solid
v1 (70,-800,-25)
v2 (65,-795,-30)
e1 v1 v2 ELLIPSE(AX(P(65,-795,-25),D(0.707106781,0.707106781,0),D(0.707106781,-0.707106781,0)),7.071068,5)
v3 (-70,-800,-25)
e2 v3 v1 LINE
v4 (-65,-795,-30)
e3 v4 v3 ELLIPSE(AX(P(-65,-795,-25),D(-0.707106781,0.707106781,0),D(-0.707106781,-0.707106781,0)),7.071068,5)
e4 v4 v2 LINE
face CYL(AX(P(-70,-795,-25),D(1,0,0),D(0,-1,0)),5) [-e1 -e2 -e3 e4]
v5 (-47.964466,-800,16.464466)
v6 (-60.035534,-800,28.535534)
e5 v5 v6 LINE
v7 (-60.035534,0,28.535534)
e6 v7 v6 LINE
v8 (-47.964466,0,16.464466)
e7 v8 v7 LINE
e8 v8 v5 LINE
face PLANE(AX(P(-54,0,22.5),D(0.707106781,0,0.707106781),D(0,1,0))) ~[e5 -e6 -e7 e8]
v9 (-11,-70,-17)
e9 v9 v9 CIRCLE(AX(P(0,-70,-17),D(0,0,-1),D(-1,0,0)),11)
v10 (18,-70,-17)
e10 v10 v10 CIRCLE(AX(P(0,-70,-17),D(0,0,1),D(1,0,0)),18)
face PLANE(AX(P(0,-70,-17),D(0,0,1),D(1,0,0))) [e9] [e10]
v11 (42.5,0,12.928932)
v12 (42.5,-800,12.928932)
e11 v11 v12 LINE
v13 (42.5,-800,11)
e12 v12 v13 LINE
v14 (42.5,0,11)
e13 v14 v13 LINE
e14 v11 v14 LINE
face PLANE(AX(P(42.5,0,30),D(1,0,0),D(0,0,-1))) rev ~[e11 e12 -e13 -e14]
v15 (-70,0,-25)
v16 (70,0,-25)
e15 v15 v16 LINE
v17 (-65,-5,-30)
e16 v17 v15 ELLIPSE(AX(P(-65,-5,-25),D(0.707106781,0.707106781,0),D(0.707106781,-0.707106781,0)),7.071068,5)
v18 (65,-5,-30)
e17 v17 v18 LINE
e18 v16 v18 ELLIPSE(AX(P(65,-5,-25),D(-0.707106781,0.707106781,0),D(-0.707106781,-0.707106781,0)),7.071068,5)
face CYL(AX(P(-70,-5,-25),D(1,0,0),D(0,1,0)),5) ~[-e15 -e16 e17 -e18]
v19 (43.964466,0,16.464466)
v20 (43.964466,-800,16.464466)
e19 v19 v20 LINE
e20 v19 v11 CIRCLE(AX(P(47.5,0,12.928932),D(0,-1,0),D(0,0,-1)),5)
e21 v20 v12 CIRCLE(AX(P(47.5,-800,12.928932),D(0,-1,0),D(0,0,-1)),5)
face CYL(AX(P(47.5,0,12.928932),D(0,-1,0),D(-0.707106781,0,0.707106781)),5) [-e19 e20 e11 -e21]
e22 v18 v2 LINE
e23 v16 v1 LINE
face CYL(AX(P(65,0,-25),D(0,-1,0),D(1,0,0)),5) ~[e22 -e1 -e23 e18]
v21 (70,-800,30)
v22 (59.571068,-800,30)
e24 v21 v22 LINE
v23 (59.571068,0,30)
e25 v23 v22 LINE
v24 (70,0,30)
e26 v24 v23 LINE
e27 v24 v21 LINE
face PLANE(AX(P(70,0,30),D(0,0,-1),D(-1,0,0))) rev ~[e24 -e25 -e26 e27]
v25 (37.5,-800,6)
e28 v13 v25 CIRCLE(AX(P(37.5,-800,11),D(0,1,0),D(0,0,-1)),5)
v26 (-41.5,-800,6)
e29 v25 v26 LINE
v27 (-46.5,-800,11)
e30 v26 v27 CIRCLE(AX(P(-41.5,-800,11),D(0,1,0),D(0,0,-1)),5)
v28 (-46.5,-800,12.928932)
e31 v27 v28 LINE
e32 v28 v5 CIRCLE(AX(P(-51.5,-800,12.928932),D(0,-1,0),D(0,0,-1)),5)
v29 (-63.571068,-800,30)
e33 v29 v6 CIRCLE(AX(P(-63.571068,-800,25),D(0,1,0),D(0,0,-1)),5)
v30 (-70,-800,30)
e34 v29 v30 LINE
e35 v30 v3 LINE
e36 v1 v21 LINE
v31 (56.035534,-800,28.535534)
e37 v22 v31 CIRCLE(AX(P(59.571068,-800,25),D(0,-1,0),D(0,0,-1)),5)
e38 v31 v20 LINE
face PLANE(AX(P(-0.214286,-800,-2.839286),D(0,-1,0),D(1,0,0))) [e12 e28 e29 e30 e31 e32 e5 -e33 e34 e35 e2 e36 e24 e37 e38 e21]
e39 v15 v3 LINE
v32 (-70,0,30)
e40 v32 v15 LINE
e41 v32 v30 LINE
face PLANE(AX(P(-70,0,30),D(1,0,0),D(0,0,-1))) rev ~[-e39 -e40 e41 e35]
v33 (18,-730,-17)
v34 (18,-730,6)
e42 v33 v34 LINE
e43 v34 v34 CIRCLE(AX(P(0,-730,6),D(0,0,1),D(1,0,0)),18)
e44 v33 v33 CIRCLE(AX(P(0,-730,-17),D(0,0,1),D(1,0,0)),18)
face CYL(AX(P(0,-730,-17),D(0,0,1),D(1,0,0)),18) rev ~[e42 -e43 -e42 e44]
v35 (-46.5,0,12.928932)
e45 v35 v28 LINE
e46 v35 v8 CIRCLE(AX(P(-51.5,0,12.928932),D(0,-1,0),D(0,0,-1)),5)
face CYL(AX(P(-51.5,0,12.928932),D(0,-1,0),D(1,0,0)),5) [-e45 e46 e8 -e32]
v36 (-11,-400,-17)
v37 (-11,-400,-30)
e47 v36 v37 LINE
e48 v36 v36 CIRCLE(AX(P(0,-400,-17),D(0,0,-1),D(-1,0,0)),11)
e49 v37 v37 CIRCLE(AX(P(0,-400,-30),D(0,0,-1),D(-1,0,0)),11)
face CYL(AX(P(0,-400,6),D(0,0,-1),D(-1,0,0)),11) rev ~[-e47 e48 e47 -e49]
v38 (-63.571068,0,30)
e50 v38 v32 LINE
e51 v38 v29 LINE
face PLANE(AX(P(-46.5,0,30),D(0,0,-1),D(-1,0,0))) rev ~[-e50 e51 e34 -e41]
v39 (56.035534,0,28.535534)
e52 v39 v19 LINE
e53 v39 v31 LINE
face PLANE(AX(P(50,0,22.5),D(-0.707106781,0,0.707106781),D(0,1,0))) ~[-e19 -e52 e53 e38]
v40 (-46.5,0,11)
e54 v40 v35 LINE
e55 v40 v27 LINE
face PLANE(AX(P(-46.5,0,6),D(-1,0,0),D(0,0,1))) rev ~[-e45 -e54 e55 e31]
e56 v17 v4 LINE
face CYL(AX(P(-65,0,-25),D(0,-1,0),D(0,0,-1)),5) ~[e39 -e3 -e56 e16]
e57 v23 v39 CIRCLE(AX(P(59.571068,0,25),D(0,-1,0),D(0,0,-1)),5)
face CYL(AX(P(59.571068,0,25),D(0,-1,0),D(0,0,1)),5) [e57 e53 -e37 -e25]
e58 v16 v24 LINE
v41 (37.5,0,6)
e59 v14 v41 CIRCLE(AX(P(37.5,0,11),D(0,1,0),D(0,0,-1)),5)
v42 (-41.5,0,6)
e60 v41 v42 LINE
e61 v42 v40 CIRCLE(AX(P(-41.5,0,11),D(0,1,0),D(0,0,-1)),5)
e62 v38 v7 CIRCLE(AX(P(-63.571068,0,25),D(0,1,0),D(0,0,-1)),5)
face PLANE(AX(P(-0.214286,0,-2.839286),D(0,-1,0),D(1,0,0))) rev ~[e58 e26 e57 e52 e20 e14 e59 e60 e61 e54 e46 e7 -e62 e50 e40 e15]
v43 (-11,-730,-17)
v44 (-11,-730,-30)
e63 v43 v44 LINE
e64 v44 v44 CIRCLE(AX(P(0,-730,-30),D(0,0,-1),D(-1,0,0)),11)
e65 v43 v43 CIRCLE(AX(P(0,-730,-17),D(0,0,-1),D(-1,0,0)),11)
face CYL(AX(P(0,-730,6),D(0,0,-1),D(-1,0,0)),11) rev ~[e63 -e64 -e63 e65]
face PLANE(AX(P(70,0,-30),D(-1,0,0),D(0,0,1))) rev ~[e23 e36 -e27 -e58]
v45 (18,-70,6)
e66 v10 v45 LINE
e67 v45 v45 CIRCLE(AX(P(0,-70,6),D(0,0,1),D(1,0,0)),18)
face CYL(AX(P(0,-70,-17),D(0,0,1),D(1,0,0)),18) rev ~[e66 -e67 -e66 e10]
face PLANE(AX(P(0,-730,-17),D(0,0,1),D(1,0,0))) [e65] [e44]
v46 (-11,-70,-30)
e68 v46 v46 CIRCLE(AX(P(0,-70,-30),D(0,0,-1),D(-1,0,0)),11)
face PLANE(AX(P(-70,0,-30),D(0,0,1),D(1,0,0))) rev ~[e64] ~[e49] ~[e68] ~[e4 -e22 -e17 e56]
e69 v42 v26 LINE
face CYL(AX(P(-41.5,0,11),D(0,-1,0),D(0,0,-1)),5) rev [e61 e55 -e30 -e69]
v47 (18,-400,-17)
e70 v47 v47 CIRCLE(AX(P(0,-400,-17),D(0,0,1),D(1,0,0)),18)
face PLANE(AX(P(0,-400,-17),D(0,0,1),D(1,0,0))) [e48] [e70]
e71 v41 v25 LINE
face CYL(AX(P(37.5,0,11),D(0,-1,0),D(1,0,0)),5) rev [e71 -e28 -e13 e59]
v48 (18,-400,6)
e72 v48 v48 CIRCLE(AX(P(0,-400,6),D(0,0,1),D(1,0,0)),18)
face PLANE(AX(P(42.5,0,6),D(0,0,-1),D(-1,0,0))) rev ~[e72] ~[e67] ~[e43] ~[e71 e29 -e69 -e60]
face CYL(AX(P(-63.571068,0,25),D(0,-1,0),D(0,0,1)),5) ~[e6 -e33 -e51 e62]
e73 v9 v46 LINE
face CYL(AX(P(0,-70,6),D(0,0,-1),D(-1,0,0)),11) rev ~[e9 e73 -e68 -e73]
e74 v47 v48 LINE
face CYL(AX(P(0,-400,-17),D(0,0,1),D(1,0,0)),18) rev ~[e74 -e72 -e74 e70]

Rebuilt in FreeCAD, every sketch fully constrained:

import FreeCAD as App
import Part
import Sketcher

V = App.Vector
Q = App.Units.Quantity


def edges_at(feature, points):
    """Names of the edges that pass closest to the given points."""
    edges = feature.Shape.Edges
    near = lambda p: min(range(len(edges)), key=lambda i: edges[i].distToShape(Part.Vertex(*p))[0])
    return sorted({f"Edge{near(p) + 1}" for p in points})


def add_polygon(sketch, points):
    """Adds a closed chain of lines whose ends are joined by coincident constraints."""
    first, n = sketch.GeometryCount, len(points)
    for a, b in zip(points, points[1:] + points[:1]):
        sketch.addGeometry(Part.LineSegment(App.Vector(*a, 0), App.Vector(*b, 0)), False)
    for i in range(n):
        sketch.addConstraint(Sketcher.Constraint("Coincident", first + i, 2, first + (i + 1) % n, 1))

doc = App.newDocument("Part")
body = doc.addObject("PartDesign::Body", "Body")

# Sketch on XZ plane
sketch1 = body.newObject("Sketcher::SketchObject", "Sketch")
sketch1.AttachmentSupport = (doc.getObject("XZ_Plane"), [""])
sketch1.MapMode = "FlatFace"
add_polygon(sketch1, [(70, -30), (70, 30), (42, 30), (42, 6), (-46, 6), (-46, 30), (-70, 30), (-70, -30)])  # lines 0-7
sketch1.addConstraint([
    Sketcher.Constraint("Vertical", 0),
    Sketcher.Constraint("Horizontal", 1),
    Sketcher.Constraint("Vertical", 2),
    Sketcher.Constraint("Horizontal", 3),
    Sketcher.Constraint("Vertical", 4),
    Sketcher.Constraint("Horizontal", 5),
    Sketcher.Constraint("Vertical", 6),
    Sketcher.Constraint("Horizontal", 7),
    Sketcher.Constraint("Symmetric", 0, 2, 6, 2, -1, 1),
    Sketcher.Constraint("Horizontal", 1, 2, 4, 2),
    Sketcher.Constraint("DistanceX", 3, 2, 3, 1, Q("89 mm")),
    Sketcher.Constraint("DistanceX", 7, 1, 7, 2, Q("140 mm")),
    Sketcher.Constraint("DistanceY", 0, 1, 0, 2, Q("60 mm")),
    Sketcher.Constraint("DistanceY", 2, 2, 2, 1, Q("24 mm")),
    Sketcher.Constraint("DistanceX", 1, 2, 1, 1, Q("27.5 mm")),
])
pad1 = body.newObject("PartDesign::Pad", "Pad")
pad1.Profile = sketch1
pad1.Length = 800
doc.recompute()

chamfer = body.newObject("PartDesign::Chamfer", "Chamfer")
chamfer.Base = (pad1, edges_at(pad1, [(-46.5, -400, 30), (42.5, -400, 30)]))
chamfer.Size = 15
doc.recompute()

fillet = body.newObject("PartDesign::Fillet", "Fillet")
fillet.Base = (chamfer, edges_at(chamfer, [
    (-61.5, -400, 30),
    (-46.5, -400, 15),
    (-46.5, -400, 6),
    (57.5, -400, 30),
    (42.5, -400, 15),
    (42.5, -400, 6),
    (-70, -400, -30),
    (70, -400, -30),
    (0, -800, -30),
    (0, 0, -30),
]))
fillet.Radius = 5

# Sketch on XY plane
sketch2 = body.newObject("Sketcher::SketchObject", "Sketch001")
sketch2.AttachmentSupport = (doc.getObject("XY_Plane"), [""])
sketch2.MapMode = "FlatFace"
sketch2.AttachmentOffset = App.Placement(V(0, 0, 6), App.Rotation())
sketch2.addGeometry(Part.Circle(V(0, -70, 0), V(0, 0, 1), 11), False)
sketch2.addConstraint([
    Sketcher.Constraint("PointOnObject", 0, 3, -2),
    Sketcher.Constraint("Diameter", 0, Q("22 mm")),
    Sketcher.Constraint("DistanceY", 0, 3, -1, 1, Q("70 mm")),
])
doc.recompute()
hole = body.newObject("PartDesign::Hole", "Hole")
hole.Profile = sketch2
hole.ThreadType = "None"
hole.Diameter = 22
hole.DepthType = "ThroughAll"
hole.HoleCutType = "Counterbore"
hole.HoleCutDiameter = 36
hole.HoleCutDepth = 23

# Sketch on XY plane
sketch3 = body.newObject("Sketcher::SketchObject", "Sketch002")
sketch3.AttachmentSupport = (doc.getObject("XY_Plane"), [""])
sketch3.MapMode = "FlatFace"
sketch3.AttachmentOffset = App.Placement(V(0, 0, 6), App.Rotation())
sketch3.addGeometry(Part.Circle(V(0, -400, 0), V(0, 0, 1), 11), False)
sketch3.addConstraint([
    Sketcher.Constraint("PointOnObject", 0, 3, -2),
    Sketcher.Constraint("Diameter", 0, Q("22 mm")),
    Sketcher.Constraint("DistanceY", 0, 3, -1, 1, Q("400 mm")),
])
doc.recompute()
hole2 = body.newObject("PartDesign::Hole", "Hole001")
hole2.Profile = sketch3
hole2.ThreadType = "None"
hole2.Diameter = 22
hole2.DepthType = "ThroughAll"
hole2.HoleCutType = "Counterbore"
hole2.HoleCutDiameter = 36
hole2.HoleCutDepth = 23

# Sketch on XY plane
sketch4 = body.newObject("Sketcher::SketchObject", "Sketch003")
sketch4.AttachmentSupport = (doc.getObject("XY_Plane"), [""])
sketch4.MapMode = "FlatFace"
sketch4.AttachmentOffset = App.Placement(V(0, 0, 6), App.Rotation())
sketch4.addGeometry(Part.Circle(V(0, -730, 0), V(0, 0, 1), 11), False)
sketch4.addConstraint([
    Sketcher.Constraint("PointOnObject", 0, 3, -2),
    Sketcher.Constraint("Diameter", 0, Q("22 mm")),
    Sketcher.Constraint("DistanceY", 0, 3, -1, 1, Q("730 mm")),
])
doc.recompute()
hole3 = body.newObject("PartDesign::Hole", "Hole002")
hole3.Profile = sketch4
hole3.ThreadType = "None"
hole3.Diameter = 22
hole3.DepthType = "ThroughAll"
hole3.HoleCutType = "Counterbore"
hole3.HoleCutDiameter = 36
hole3.HoleCutDepth = 23

doc.recompute()
